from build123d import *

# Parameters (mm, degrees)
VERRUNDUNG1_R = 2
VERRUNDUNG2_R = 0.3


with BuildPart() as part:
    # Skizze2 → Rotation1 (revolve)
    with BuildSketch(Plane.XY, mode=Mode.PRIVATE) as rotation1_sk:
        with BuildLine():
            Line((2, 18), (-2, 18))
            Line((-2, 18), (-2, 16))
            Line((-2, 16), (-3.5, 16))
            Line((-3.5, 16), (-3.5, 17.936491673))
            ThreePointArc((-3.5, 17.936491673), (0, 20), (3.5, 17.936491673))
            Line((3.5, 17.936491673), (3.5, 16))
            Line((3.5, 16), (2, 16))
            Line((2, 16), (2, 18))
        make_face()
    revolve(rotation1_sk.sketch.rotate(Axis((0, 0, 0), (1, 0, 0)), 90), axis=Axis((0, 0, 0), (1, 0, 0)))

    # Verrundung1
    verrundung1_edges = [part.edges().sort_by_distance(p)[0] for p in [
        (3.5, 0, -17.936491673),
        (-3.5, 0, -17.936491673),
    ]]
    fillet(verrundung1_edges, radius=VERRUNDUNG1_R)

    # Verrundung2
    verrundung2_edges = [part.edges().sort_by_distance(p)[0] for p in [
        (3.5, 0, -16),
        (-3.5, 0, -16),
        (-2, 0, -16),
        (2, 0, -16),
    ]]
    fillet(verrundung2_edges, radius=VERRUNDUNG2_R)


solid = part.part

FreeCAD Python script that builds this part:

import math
import FreeCAD as App
import Part
import Sketcher

V = App.Vector


def edges_at(feature, points):
    """Names of the edges that pass closest to the given points."""
    edges = feature.Shape.Edges
    near = lambda p: min(range(len(edges)), key=lambda i: edges[i].distToShape(Part.Vertex(*p))[0])
    return sorted({f"Edge{near(p) + 1}" for p in points})

doc = App.newDocument("Part")
params = doc.addObject("Spreadsheet::Sheet", "Params")
for row, (alias, value) in enumerate([
    ("sketch1_radius", "4 mm"),
    ("sketch1_width", "4 mm"),
    ("sketch1_height", "2 mm"),
    ("sketch1_width2", "1.5 mm"),
    ("revolution_angle", "360 deg"),
    ("fillet_radius", "2 mm"),
    ("fillet2_radius", "0.3 mm"),
], start=1):
    params.set(f"A{row}", alias)
    params.set(f"B{row}", "=" + value)
    params.setAlias(f"B{row}", alias)

body = doc.addObject("PartDesign::Body", "Body")

# Sketch on XY plane
sketch1 = body.newObject("Sketcher::SketchObject", "Sketch")
sketch1.AttachmentSupport = (doc.getObject("XY_Plane"), [""])
sketch1.MapMode = "FlatFace"
sketch1.addGeometry(Part.LineSegment(V(-2, 18, 0), V(2, 18, 0)), False)
sketch1.addGeometry(Part.LineSegment(V(2, 18, 0), V(2, 16, 0)), False)
sketch1.addGeometry(Part.LineSegment(V(2, 16, 0), V(3.5, 16, 0)), False)
sketch1.addGeometry(Part.LineSegment(V(3.5, 16, 0), V(3.5, 17.9, 0)), False)
sketch1.addGeometry(Part.ArcOfCircle(Part.Circle(V(0, 16, 0), V(0, 0, 1), 4), math.radians(29), math.radians(151)), False)
sketch1.addGeometry(Part.LineSegment(V(-3.5, 17.9, 0), V(-3.5, 16, 0)), False)
sketch1.addGeometry(Part.LineSegment(V(-3.5, 16, 0), V(-2, 16, 0)), False)
sketch1.addGeometry(Part.LineSegment(V(-2, 16, 0), V(-2, 18, 0)), False)
sketch1.addConstraint(Sketcher.Constraint("Coincident", 0, 2, 1, 1))
sketch1.addConstraint(Sketcher.Constraint("Coincident", 1, 2, 2, 1))
sketch1.addConstraint(Sketcher.Constraint("Coincident", 2, 2, 3, 1))
sketch1.addConstraint(Sketcher.Constraint("Coincident", 3, 2, 4, 1))
sketch1.addConstraint(Sketcher.Constraint("Coincident", 4, 2, 5, 1))
sketch1.addConstraint(Sketcher.Constraint("Coincident", 5, 2, 6, 1))
sketch1.addConstraint(Sketcher.Constraint("Coincident", 6, 2, 7, 1))
sketch1.addConstraint(Sketcher.Constraint("Coincident", 7, 2, 0, 1))
sketch1.addConstraint(Sketcher.Constraint("Horizontal", 0))
sketch1.addConstraint(Sketcher.Constraint("Vertical", 1))
sketch1.addConstraint(Sketcher.Constraint("Horizontal", 2))
sketch1.addConstraint(Sketcher.Constraint("Vertical", 3))
sketch1.addConstraint(Sketcher.Constraint("Vertical", 5))
sketch1.addConstraint(Sketcher.Constraint("Horizontal", 6))
sketch1.addConstraint(Sketcher.Constraint("Vertical", 7))
sketch1.addConstraint(Sketcher.Constraint("Symmetric", 3, 2, 4, 2, -2))
sketch1.addConstraint(Sketcher.Constraint("Symmetric", 1, 2, 6, 2, -2))
sketch1.addConstraint(Sketcher.Constraint("Horizontal", 4, 3, 1, 2))
sketch1.addConstraint(Sketcher.Constraint("Radius", 4, 4.0))
sketch1.addConstraint(Sketcher.Constraint("DistanceX", 0, 1, 0, 2, 4.0))
sketch1.addConstraint(Sketcher.Constraint("DistanceY", 1, 2, 1, 1, 2.0))
sketch1.addConstraint(Sketcher.Constraint("DistanceX", 2, 1, 2, 2, 1.5))
sketch1.addConstraint(Sketcher.Constraint("DistanceY", -1, 1, 4, 3, 16.0))
sketch1.setExpression("Constraints[18]", "Params.sketch1_radius")
sketch1.setExpression("Constraints[19]", "Params.sketch1_width")
sketch1.setExpression("Constraints[20]", "Params.sketch1_height")
sketch1.setExpression("Constraints[21]", "Params.sketch1_width2")
revolution = body.newObject("PartDesign::Revolution", "Revolution")
revolution.Profile = sketch1
revolution.ReferenceAxis = (sketch1, ["H_Axis"])
revolution.setExpression("Angle", "Params.revolution_angle")
doc.recompute()

fillet = body.newObject("PartDesign::Fillet", "Fillet")
fillet.Base = (revolution, edges_at(revolution, [(3.5, 0, -17.936), (-3.5, 0, -17.936)]))
fillet.setExpression("Radius", "Params.fillet_radius")
doc.recompute()

fillet2 = body.newObject("PartDesign::Fillet", "Fillet001")
fillet2.Base = (fillet, edges_at(fillet, [
    (3.5, 0, -16),
    (-3.5, 0, -16),
    (-2, 0, -16),
    (2, 0, -16),
]))
fillet2.setExpression("Radius", "Params.fillet2_radius")

doc.recompute()
